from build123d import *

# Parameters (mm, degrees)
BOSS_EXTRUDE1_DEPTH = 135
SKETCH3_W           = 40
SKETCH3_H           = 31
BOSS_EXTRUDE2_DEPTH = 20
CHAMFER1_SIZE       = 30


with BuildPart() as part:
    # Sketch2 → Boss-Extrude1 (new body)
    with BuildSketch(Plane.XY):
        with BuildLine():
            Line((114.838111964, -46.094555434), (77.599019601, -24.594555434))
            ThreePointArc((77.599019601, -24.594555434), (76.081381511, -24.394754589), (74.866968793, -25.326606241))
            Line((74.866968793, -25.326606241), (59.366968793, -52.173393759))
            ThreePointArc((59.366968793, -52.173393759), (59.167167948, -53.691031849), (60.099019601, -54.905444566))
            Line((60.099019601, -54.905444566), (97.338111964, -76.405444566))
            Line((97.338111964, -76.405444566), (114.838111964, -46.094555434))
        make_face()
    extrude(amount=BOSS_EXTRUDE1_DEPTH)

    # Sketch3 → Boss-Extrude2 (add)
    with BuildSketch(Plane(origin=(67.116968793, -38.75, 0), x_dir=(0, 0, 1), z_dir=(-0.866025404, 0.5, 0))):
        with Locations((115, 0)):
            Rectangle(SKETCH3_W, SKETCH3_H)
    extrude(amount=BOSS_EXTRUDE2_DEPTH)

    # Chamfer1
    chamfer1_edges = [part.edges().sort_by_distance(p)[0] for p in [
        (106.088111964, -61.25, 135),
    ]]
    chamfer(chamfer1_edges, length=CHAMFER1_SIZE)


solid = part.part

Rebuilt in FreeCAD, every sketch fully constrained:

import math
import FreeCAD as App
import Part
import Sketcher
Q = App.Units.Quantity


def edges_at(feature, points):
    """Names of the edges that pass closest to the given points."""
    edges = feature.Shape.Edges
    near = lambda p: min(range(len(edges)), key=lambda i: edges[i].distToShape(Part.Vertex(*p))[0])
    return sorted({f"Edge{near(p) + 1}" for p in points})

doc = App.newDocument("Part")
body = doc.addObject("PartDesign::Body", "Body")

# Sketch on XY plane
sketch1 = body.newObject("Sketcher::SketchObject", "Sketch")
sketch1.AttachmentSupport = (doc.getObject("XY_Plane"), [""])
sketch1.MapMode = "FlatFace"
sketch1.addGeometry([
    Part.LineSegment(App.Vector(114.8, -46.1, 0), App.Vector(77.6, -24.6, 0)),  # 0
    Part.ArcOfCircle(Part.Circle(App.Vector(76.6, -26.3, 0), App.Vector(0, 0, 1), 2), math.radians(60), math.radians(150)),  # 1
    Part.LineSegment(App.Vector(74.9, -25.3, 0), App.Vector(59.4, -52.2, 0)),  # 2
    Part.ArcOfCircle(Part.Circle(App.Vector(61.1, -53.2, 0), App.Vector(0, 0, 1), 2), math.radians(150), math.radians(240)),  # 3
    Part.LineSegment(App.Vector(60.1, -54.9, 0), App.Vector(97.3, -76.4, 0)),  # 4
    Part.LineSegment(App.Vector(97.3, -76.4, 0), App.Vector(114.8, -46.1, 0)),  # 5
], False)
sketch1.addConstraint([
    Sketcher.Constraint("Tangent", 0, 2, 1, 1),
    Sketcher.Constraint("Tangent", 1, 2, 2, 1),
    Sketcher.Constraint("Tangent", 2, 2, 3, 1),
    Sketcher.Constraint("Tangent", 3, 2, 4, 1),
    Sketcher.Constraint("Coincident", 4, 2, 5, 1),
    Sketcher.Constraint("Coincident", 5, 2, 0, 1),
    Sketcher.Constraint("Equal", 1, 3),
    Sketcher.Constraint("Perpendicular", 0, 2),
    Sketcher.Constraint("Perpendicular", 2, 4),
    Sketcher.Constraint("Perpendicular", 4, 5),
    Sketcher.Constraint("Radius", 1, Q("2 mm")),
    Sketcher.Constraint("Angle", 0, Q("150 deg")),
    Sketcher.Constraint("Distance", 0, Q("43 mm")),
    Sketcher.Constraint("Distance", 2, Q("31 mm")),
    Sketcher.Constraint("DistanceX", -1, 1, 1, 3, Q("76.59902 mm")),
    Sketcher.Constraint("DistanceY", 1, 3, -1, 1, Q("26.326606 mm")),
])
pad1 = body.newObject("PartDesign::Pad", "Pad")
pad1.Profile = sketch1
pad1.Length = 135

# Sketch on an angled plane
sketch2 = body.newObject("Sketcher::SketchObject", "Sketch001")
sketch2.Placement = App.Placement(App.Vector(67.116969, -38.75, 0), App.Rotation(App.Vector(0, 0, 1), App.Vector(0.5, 0.866025404, 0), App.Vector(-0.866025404, 0.5, 0), "ZXY"))
sketch2.addGeometry([
    Part.LineSegment(App.Vector(95, 16, 0), App.Vector(95, -16, 0)),
    Part.LineSegment(App.Vector(95, -16, 0), App.Vector(135, -16, 0)),
    Part.LineSegment(App.Vector(135, -16, 0), App.Vector(135, 16, 0)),
    Part.LineSegment(App.Vector(135, 16, 0), App.Vector(95, 16, 0)),
], False)
sketch2.addConstraint([
    Sketcher.Constraint("Coincident", 0, 2, 1, 1),
    Sketcher.Constraint("Coincident", 1, 2, 2, 1),
    Sketcher.Constraint("Coincident", 2, 2, 3, 1),
    Sketcher.Constraint("Coincident", 3, 2, 0, 1),
    Sketcher.Constraint("Vertical", 0),
    Sketcher.Constraint("Horizontal", 1),
    Sketcher.Constraint("Vertical", 2),
    Sketcher.Constraint("Horizontal", 3),
    Sketcher.Constraint("DistanceX", 1, 1, 1, 2, Q("40 mm")),
    Sketcher.Constraint("DistanceY", 0, 2, 0, 1, Q("31 mm")),
    Sketcher.Constraint("DistanceX", -1, 1, 0, 2, Q("95 mm")),
    Sketcher.Constraint("DistanceY", 0, 2, -1, 1, Q("15.5 mm")),
])
pad2 = body.newObject("PartDesign::Pad", "Pad001")
pad2.Profile = sketch2
pad2.Length = 20
doc.recompute()

chamfer = body.newObject("PartDesign::Chamfer", "Chamfer")
chamfer.Base = (pad2, edges_at(pad2, [(106.088, -61.25, 135)]))
chamfer.Size = 30

doc.recompute()
